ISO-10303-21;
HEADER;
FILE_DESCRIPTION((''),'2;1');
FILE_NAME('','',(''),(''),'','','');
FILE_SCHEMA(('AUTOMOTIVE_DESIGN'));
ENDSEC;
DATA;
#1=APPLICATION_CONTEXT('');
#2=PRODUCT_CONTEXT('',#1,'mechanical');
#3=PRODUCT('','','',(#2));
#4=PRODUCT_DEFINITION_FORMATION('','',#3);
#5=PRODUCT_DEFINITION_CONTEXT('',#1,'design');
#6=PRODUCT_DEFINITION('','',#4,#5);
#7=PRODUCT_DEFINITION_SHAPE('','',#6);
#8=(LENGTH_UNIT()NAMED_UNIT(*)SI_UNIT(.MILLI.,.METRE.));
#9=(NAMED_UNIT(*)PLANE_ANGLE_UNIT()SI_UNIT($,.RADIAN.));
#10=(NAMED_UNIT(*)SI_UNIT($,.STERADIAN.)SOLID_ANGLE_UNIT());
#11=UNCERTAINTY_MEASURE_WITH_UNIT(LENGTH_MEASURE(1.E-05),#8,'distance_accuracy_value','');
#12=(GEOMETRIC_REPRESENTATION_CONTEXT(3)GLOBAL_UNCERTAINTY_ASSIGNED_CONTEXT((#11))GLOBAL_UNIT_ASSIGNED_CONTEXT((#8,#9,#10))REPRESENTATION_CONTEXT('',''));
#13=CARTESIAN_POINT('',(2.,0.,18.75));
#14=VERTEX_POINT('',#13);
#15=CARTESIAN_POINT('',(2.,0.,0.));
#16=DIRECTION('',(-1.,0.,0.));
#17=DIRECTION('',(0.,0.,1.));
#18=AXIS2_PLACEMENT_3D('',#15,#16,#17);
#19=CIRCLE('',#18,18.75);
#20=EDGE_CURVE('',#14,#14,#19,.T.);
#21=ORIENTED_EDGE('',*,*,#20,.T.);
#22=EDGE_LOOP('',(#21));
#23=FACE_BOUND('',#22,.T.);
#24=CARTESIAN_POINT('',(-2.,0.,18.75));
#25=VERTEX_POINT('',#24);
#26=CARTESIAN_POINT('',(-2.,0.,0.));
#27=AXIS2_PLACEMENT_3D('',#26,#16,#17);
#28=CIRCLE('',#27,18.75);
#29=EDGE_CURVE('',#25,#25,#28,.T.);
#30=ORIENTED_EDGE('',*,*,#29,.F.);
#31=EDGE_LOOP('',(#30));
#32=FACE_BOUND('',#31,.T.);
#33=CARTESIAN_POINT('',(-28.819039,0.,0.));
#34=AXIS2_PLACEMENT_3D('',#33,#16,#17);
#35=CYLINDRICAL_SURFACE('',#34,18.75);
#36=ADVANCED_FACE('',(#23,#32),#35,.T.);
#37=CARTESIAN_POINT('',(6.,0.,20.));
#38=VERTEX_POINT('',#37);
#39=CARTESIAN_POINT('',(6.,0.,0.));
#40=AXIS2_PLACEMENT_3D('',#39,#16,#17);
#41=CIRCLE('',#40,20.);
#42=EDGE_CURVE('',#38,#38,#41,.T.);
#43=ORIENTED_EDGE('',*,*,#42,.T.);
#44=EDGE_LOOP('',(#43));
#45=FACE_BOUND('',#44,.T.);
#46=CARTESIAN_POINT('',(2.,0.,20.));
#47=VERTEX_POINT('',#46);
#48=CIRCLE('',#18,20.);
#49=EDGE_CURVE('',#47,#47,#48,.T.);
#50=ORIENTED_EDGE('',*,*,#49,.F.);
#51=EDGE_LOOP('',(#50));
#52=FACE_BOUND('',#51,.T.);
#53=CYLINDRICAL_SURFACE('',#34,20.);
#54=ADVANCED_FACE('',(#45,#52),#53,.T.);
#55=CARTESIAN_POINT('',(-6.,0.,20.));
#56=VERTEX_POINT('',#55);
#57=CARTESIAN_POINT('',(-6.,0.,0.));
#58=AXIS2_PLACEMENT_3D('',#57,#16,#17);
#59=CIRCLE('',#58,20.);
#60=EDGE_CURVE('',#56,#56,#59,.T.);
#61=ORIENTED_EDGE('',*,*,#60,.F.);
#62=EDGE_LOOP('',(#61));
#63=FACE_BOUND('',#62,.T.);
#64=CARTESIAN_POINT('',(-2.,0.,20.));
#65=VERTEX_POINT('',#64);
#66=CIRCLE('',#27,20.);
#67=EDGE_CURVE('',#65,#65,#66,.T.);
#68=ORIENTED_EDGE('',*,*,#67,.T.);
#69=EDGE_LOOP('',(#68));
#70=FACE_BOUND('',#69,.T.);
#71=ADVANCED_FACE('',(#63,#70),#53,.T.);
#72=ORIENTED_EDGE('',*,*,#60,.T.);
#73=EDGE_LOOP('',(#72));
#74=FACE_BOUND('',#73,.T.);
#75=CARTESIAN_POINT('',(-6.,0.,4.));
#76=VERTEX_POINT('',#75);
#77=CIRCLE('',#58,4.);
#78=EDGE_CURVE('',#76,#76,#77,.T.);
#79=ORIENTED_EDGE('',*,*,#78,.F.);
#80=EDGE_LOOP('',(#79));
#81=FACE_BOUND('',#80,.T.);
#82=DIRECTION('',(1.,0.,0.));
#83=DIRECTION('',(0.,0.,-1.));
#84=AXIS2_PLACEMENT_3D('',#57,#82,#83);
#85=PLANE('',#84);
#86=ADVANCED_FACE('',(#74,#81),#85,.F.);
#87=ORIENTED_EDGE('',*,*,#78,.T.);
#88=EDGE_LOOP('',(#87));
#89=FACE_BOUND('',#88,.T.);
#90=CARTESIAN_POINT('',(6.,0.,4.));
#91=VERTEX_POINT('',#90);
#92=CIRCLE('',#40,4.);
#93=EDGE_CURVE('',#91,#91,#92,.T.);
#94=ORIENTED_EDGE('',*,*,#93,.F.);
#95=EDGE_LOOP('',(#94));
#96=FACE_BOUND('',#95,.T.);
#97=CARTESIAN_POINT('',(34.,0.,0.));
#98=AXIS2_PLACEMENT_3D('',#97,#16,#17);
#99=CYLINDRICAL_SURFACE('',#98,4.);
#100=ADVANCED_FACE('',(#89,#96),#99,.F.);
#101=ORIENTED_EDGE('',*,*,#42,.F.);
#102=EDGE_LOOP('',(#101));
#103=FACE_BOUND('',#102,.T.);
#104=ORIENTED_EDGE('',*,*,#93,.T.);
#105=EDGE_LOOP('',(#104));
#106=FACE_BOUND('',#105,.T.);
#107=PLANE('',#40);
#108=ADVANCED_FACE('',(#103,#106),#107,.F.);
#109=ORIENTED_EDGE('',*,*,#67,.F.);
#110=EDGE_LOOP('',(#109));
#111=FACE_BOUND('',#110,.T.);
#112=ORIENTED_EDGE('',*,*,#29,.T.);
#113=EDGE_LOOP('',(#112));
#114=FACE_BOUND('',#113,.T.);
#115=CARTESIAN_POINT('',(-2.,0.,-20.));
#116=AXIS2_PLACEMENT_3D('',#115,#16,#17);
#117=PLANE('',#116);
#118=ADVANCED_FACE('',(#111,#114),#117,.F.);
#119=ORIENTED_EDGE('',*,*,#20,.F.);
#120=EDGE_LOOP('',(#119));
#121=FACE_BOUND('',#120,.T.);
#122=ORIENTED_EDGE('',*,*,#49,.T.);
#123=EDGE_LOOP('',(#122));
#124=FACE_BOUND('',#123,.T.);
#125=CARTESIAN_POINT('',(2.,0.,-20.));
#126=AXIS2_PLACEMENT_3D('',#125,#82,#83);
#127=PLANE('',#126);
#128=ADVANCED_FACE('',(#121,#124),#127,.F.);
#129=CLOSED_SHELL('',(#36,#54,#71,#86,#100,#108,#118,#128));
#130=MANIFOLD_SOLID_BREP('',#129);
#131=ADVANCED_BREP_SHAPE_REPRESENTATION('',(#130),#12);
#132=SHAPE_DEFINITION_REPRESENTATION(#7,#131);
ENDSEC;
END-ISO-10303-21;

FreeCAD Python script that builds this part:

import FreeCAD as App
import Part
import Sketcher
from FreeCAD import Vector

doc = App.newDocument("Part")
body = doc.addObject("PartDesign::Body", "Body")

sketch1 = doc.addObject("Sketcher::SketchObject", "Sketch")
body.addObject(sketch1)
sketch1.AttachmentSupport = (doc.XZ_Plane, [""])
sketch1.MapMode = "FlatFace"
sketch1.addGeometry(Part.LineSegment(Vector(-6, 0, 0), Vector(6, 0, 0)), False)
sketch1.addGeometry(Part.LineSegment(Vector(6, 0, 0), Vector(6, -20, 0)), False)
sketch1.addGeometry(Part.LineSegment(Vector(6, -20, 0), Vector(2, -20, 0)), False)
sketch1.addGeometry(Part.LineSegment(Vector(2, -20, 0), Vector(2, -18.75, 0)), False)
sketch1.addGeometry(Part.LineSegment(Vector(2, -18.75, 0), Vector(-2, -18.75, 0)), False)
sketch1.addGeometry(Part.LineSegment(Vector(-2, -18.75, 0), Vector(-2, -20, 0)), False)
sketch1.addGeometry(Part.LineSegment(Vector(-2, -20, 0), Vector(-6, -20, 0)), False)
sketch1.addGeometry(Part.LineSegment(Vector(-6, -20, 0), Vector(-6, 0, 0)), False)
sketch1.addConstraint(Sketcher.Constraint("Coincident", 0, 2, 1, 1))
sketch1.addConstraint(Sketcher.Constraint("Coincident", 1, 2, 2, 1))
sketch1.addConstraint(Sketcher.Constraint("Coincident", 2, 2, 3, 1))
sketch1.addConstraint(Sketcher.Constraint("Coincident", 3, 2, 4, 1))
sketch1.addConstraint(Sketcher.Constraint("Coincident", 4, 2, 5, 1))
sketch1.addConstraint(Sketcher.Constraint("Coincident", 5, 2, 6, 1))
sketch1.addConstraint(Sketcher.Constraint("Coincident", 6, 2, 7, 1))
sketch1.addConstraint(Sketcher.Constraint("Coincident", 7, 2, 0, 1))
sketch1.addConstraint(Sketcher.Constraint("Horizontal", 0))
sketch1.addConstraint(Sketcher.Constraint("Vertical", 1))
sketch1.addConstraint(Sketcher.Constraint("Horizontal", 2))
sketch1.addConstraint(Sketcher.Constraint("Vertical", 3))
sketch1.addConstraint(Sketcher.Constraint("Horizontal", 4))
sketch1.addConstraint(Sketcher.Constraint("Vertical", 5))
sketch1.addConstraint(Sketcher.Constraint("Horizontal", 6))
sketch1.addConstraint(Sketcher.Constraint("Vertical", 7))
sketch1.addConstraint(Sketcher.Constraint("Symmetric", 0, 2, 7, 2, -1, 1))
sketch1.addConstraint(Sketcher.Constraint("Symmetric", 2, 2, 5, 2, -2))
sketch1.addConstraint(Sketcher.Constraint("Equal", 2, 4))
sketch1.addConstraint(Sketcher.Constraint("DistanceX", 0, 1, 0, 2, 12.0))
sketch1.addConstraint(Sketcher.Constraint("DistanceY", 1, 2, 1, 1, 20.0))
sketch1.addConstraint(Sketcher.Constraint("DistanceY", 3, 1, 3, 2, 1.25))
revolution = doc.addObject("PartDesign::Revolution", "Revolution")
body.addObject(revolution)
revolution.Profile = sketch1
revolution.ReferenceAxis = (sketch1, ["H_Axis"])
revolution.Angle = 360

sketch2 = doc.addObject("Sketcher::SketchObject", "Sketch001")
body.addObject(sketch2)
sketch2.AttachmentSupport = (doc.YZ_Plane, [""])
sketch2.MapMode = "FlatFace"
sketch2.AttachmentOffset = App.Placement(Vector(0, 0, -6), App.Rotation())
sketch2.addGeometry(Part.Circle(Vector(0, 0, 0), Vector(0, 0, 1), 4), False)
sketch2.addConstraint(Sketcher.Constraint("Coincident", 0, 3, -1, 1))
sketch2.addConstraint(Sketcher.Constraint("Diameter", 0, 8.0))
pocket1 = doc.addObject("PartDesign::Pocket", "Pocket")
body.addObject(pocket1)
pocket1.Profile = sketch2
pocket1.Length = 40
pocket1.Reversed = True

doc.recompute()
